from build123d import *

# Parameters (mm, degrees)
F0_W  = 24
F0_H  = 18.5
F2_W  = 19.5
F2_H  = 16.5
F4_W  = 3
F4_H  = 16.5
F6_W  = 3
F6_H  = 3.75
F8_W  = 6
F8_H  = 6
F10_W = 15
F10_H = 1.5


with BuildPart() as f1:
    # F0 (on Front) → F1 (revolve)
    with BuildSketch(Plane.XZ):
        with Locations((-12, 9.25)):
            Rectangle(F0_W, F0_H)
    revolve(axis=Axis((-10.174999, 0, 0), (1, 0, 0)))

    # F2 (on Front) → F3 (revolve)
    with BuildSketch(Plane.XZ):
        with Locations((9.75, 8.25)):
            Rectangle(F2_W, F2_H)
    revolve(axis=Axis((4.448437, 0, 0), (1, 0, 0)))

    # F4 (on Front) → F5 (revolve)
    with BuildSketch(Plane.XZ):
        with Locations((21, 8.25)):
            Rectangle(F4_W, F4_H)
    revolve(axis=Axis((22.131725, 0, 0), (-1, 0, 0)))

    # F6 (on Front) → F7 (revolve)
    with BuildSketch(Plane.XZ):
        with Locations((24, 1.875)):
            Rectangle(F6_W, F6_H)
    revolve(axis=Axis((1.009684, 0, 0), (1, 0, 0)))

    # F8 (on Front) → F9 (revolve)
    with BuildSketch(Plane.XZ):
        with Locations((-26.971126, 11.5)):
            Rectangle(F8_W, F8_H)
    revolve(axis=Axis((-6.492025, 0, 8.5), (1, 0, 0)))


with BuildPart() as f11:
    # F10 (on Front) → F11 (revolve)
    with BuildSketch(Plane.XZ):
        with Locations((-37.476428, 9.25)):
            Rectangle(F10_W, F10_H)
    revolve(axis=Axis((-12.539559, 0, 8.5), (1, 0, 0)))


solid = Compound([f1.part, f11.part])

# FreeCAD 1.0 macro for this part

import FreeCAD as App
import Part
import Sketcher
Q = App.Units.Quantity


def add_polygon(sketch, points):
    """Adds a closed chain of lines whose ends are joined by coincident constraints."""
    first, n = sketch.GeometryCount, len(points)
    for a, b in zip(points, points[1:] + points[:1]):
        sketch.addGeometry(Part.LineSegment(App.Vector(*a, 0), App.Vector(*b, 0)), False)
    for i in range(n):
        sketch.addConstraint(Sketcher.Constraint("Coincident", first + i, 2, first + (i + 1) % n, 1))

doc = App.newDocument("Part")
body = doc.addObject("PartDesign::Body", "Body")

# Sketch on XZ plane
sketch1 = body.newObject("Sketcher::SketchObject", "Sketch")
sketch1.AttachmentSupport = (doc.getObject("XZ_Plane"), [""])
sketch1.MapMode = "FlatFace"
add_polygon(sketch1, [(-24, 18), (-24, 0), (0, 0), (0, 18)])  # lines 0-3
sketch1.addConstraint(Sketcher.Constraint("Vertical", 0))
sketch1.addConstraint(Sketcher.Constraint("Horizontal", 1))
sketch1.addConstraint(Sketcher.Constraint("Vertical", 2))
sketch1.addConstraint(Sketcher.Constraint("Horizontal", 3))
sketch1.addConstraint(Sketcher.Constraint("Coincident", 1, 2, -1, 1))
sketch1.addConstraint(Sketcher.Constraint("DistanceX", 1, 1, 1, 2, Q("24 mm")))
sketch1.addConstraint(Sketcher.Constraint("DistanceY", 0, 2, 0, 1, Q("18.5 mm")))
revolution = body.newObject("PartDesign::Revolution", "Revolution")
revolution.Profile = sketch1
revolution.ReferenceAxis = (sketch1, ["H_Axis"])
revolution.Angle = 360

# Sketch on XZ plane
sketch2 = body.newObject("Sketcher::SketchObject", "Sketch001")
sketch2.AttachmentSupport = (doc.getObject("XZ_Plane"), [""])
sketch2.MapMode = "FlatFace"
add_polygon(sketch2, [(0, 16), (0, 0), (20, 0), (20, 16)])  # lines 0-3
sketch2.addConstraint(Sketcher.Constraint("Vertical", 0))
sketch2.addConstraint(Sketcher.Constraint("Horizontal", 1))
sketch2.addConstraint(Sketcher.Constraint("Vertical", 2))
sketch2.addConstraint(Sketcher.Constraint("Horizontal", 3))
sketch2.addConstraint(Sketcher.Constraint("Coincident", 0, 2, -1, 1))
sketch2.addConstraint(Sketcher.Constraint("DistanceX", 1, 1, 1, 2, Q("19.5 mm")))
sketch2.addConstraint(Sketcher.Constraint("DistanceY", 0, 2, 0, 1, Q("16.5 mm")))
revolution2 = body.newObject("PartDesign::Revolution", "Revolution001")
revolution2.Profile = sketch2
revolution2.ReferenceAxis = (sketch2, ["H_Axis"])
revolution2.Angle = 360

# Sketch on XZ plane
sketch3 = body.newObject("Sketcher::SketchObject", "Sketch002")
sketch3.AttachmentSupport = (doc.getObject("XZ_Plane"), [""])
sketch3.MapMode = "FlatFace"
add_polygon(sketch3, [(19.5, 16.5), (19.5, 0), (22.5, 0), (22.5, 16.5)])  # lines 0-3
sketch3.addConstraint(Sketcher.Constraint("Vertical", 0))
sketch3.addConstraint(Sketcher.Constraint("Horizontal", 1))
sketch3.addConstraint(Sketcher.Constraint("Vertical", 2))
sketch3.addConstraint(Sketcher.Constraint("Horizontal", 3))
sketch3.addConstraint(Sketcher.Constraint("PointOnObject", 0, 2, -1))
sketch3.addConstraint(Sketcher.Constraint("DistanceX", 1, 1, 1, 2, Q("3 mm")))
sketch3.addConstraint(Sketcher.Constraint("DistanceY", 0, 2, 0, 1, Q("16.5 mm")))
sketch3.addConstraint(Sketcher.Constraint("DistanceX", -1, 1, 0, 2, Q("19.5 mm")))
revolution3 = body.newObject("PartDesign::Revolution", "Revolution002")
revolution3.Profile = sketch3
revolution3.ReferenceAxis = (sketch3, ["H_Axis"])
revolution3.Angle = 360

# Sketch on XZ plane
sketch4 = body.newObject("Sketcher::SketchObject", "Sketch003")
sketch4.AttachmentSupport = (doc.getObject("XZ_Plane"), [""])
sketch4.MapMode = "FlatFace"
add_polygon(sketch4, [(22.5, 3.8), (22.5, 0), (25.5, 0), (25.5, 3.8)])  # lines 0-3
sketch4.addConstraint(Sketcher.Constraint("Vertical", 0))
sketch4.addConstraint(Sketcher.Constraint("Horizontal", 1))
sketch4.addConstraint(Sketcher.Constraint("Vertical", 2))
sketch4.addConstraint(Sketcher.Constraint("Horizontal", 3))
sketch4.addConstraint(Sketcher.Constraint("PointOnObject", 0, 2, -1))
sketch4.addConstraint(Sketcher.Constraint("DistanceX", 1, 1, 1, 2, Q("3 mm")))
sketch4.addConstraint(Sketcher.Constraint("DistanceY", 0, 2, 0, 1, Q("3.75 mm")))
sketch4.addConstraint(Sketcher.Constraint("DistanceX", -1, 1, 0, 2, Q("22.5 mm")))
revolution4 = body.newObject("PartDesign::Revolution", "Revolution003")
revolution4.Profile = sketch4
revolution4.ReferenceAxis = (sketch4, ["H_Axis"])
revolution4.Angle = 360

# Sketch on XZ plane
sketch5 = body.newObject("Sketcher::SketchObject", "Sketch004")
sketch5.AttachmentSupport = (doc.getObject("XZ_Plane"), [""])
sketch5.MapMode = "FlatFace"
add_polygon(sketch5, [(-30, 14), (-30, 8), (-24, 8), (-24, 14)])  # lines 0-3
sketch5.addGeometry(Part.LineSegment(App.Vector(-30, 8, 0), App.Vector(-24, 8, 0)), True)  # axis
sketch5.addConstraint(Sketcher.Constraint("Vertical", 0))
sketch5.addConstraint(Sketcher.Constraint("Horizontal", 1))
sketch5.addConstraint(Sketcher.Constraint("Vertical", 2))
sketch5.addConstraint(Sketcher.Constraint("Horizontal", 3))
sketch5.addConstraint(Sketcher.Constraint("Horizontal", 4))
sketch5.addConstraint(Sketcher.Constraint("Coincident", 4, 1, 0, 2))
sketch5.addConstraint(Sketcher.Constraint("Vertical", 2, 2, 4, 2))
sketch5.addConstraint(Sketcher.Constraint("Equal", 4, 0))
sketch5.addConstraint(Sketcher.Constraint("DistanceX", 1, 1, 1, 2, Q("6 mm")))
sketch5.addConstraint(Sketcher.Constraint("DistanceY", -1, 1, 0, 2, Q("8.5 mm")))
sketch5.addConstraint(Sketcher.Constraint("DistanceX", 0, 2, -1, 1, Q("29.971126 mm")))
revolution5 = body.newObject("PartDesign::Revolution", "Revolution004")
revolution5.Profile = sketch5
revolution5.ReferenceAxis = (sketch5, ["Axis0"])
revolution5.Angle = 360
body2 = doc.addObject("PartDesign::Body", "Body001")

# Sketch on XZ plane
sketch6 = body2.newObject("Sketcher::SketchObject", "Sketch005")
sketch6.AttachmentSupport = (doc.getObject("XZ_Plane001"), [""])
sketch6.MapMode = "FlatFace"
add_polygon(sketch6, [(-45, 10), (-45, 8.5), (-30, 8.5), (-30, 10)])  # lines 0-3
sketch6.addGeometry(Part.LineSegment(App.Vector(-45, 8.5, 0), App.Vector(-30, 8.5, 0)), True)  # axis
sketch6.addConstraint(Sketcher.Constraint("Vertical", 0))
sketch6.addConstraint(Sketcher.Constraint("Horizontal", 1))
sketch6.addConstraint(Sketcher.Constraint("Vertical", 2))
sketch6.addConstraint(Sketcher.Constraint("Horizontal", 3))
sketch6.addConstraint(Sketcher.Constraint("Horizontal", 4))
sketch6.addConstraint(Sketcher.Constraint("Coincident", 4, 1, 0, 2))
sketch6.addConstraint(Sketcher.Constraint("Vertical", 2, 2, 4, 2))
sketch6.addConstraint(Sketcher.Constraint("DistanceX", 1, 1, 1, 2, Q("15 mm")))
sketch6.addConstraint(Sketcher.Constraint("DistanceY", 0, 2, 0, 1, Q("1.5 mm")))
sketch6.addConstraint(Sketcher.Constraint("DistanceY", -1, 1, 2, 2, Q("10 mm")))
sketch6.addConstraint(Sketcher.Constraint("DistanceX", 0, 2, -1, 1, Q("44.976428 mm")))
revolution6 = body2.newObject("PartDesign::Revolution", "Revolution005")
revolution6.Profile = sketch6
revolution6.ReferenceAxis = (sketch6, ["Axis0"])
revolution6.Angle = 360

doc.recompute()
